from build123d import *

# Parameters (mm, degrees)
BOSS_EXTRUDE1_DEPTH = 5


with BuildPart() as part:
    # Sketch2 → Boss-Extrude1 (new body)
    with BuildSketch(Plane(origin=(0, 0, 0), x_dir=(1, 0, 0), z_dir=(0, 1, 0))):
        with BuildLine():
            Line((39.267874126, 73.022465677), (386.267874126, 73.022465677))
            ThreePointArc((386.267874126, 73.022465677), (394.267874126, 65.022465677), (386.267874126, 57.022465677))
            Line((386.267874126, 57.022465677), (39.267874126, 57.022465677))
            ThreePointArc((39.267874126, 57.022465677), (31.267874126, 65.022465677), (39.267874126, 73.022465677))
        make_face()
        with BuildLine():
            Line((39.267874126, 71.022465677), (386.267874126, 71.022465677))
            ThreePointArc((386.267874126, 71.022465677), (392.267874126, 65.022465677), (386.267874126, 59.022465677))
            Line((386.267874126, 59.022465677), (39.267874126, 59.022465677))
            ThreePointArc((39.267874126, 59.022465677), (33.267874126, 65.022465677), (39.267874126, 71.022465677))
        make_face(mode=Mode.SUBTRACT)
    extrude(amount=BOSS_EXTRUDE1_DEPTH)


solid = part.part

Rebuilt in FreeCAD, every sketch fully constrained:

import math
import FreeCAD as App
import Part
import Sketcher
from FreeCAD import Vector
Q = App.Units.Quantity

doc = App.newDocument("Part")
params = doc.addObject("Spreadsheet::Sheet", "Params")
for row, (alias, value) in enumerate([
    ("sketch1_radius", "8 mm"),
    ("sketch1_radius2", "6 mm"),
    ("sketch1_width", "347 mm"),
    ("pad1_length", "5 mm"),
], start=1):
    params.set(f"A{row}", alias)
    params.set(f"B{row}", "=" + value)
    params.setAlias(f"B{row}", alias)

body = doc.addObject("PartDesign::Body", "Body")

# Sketch on XZ plane
sketch1 = body.newObject("Sketcher::SketchObject", "Sketch")
sketch1.AttachmentSupport = (doc.getObject("XZ_Plane"), [""])
sketch1.MapMode = "FlatFace"
sketch1.addGeometry(Part.LineSegment(Vector(386.267874, -73.022466, 0), Vector(39.267874, -73.022466, 0)), False)
sketch1.addGeometry(Part.ArcOfCircle(Part.Circle(Vector(39.267874, -65.022466, 0), Vector(0, 0, 1), 8), math.radians(90), math.radians(270)), False)
sketch1.addGeometry(Part.LineSegment(Vector(39.267874, -57.022466, 0), Vector(386.267874, -57.022466, 0)), False)
sketch1.addGeometry(Part.ArcOfCircle(Part.Circle(Vector(386.267874, -65.022466, 0), Vector(0, 0, 1), 8), math.radians(-90), math.radians(90)), False)
sketch1.addGeometry(Part.LineSegment(Vector(39.267874, -71.022466, 0), Vector(386.267874, -71.022466, 0)), False)
sketch1.addGeometry(Part.ArcOfCircle(Part.Circle(Vector(386.267874, -65.022466, 0), Vector(0, 0, 1), 6), math.radians(-90), math.radians(90)), False)
sketch1.addGeometry(Part.LineSegment(Vector(386.267874, -59.022466, 0), Vector(39.267874, -59.022466, 0)), False)
sketch1.addGeometry(Part.ArcOfCircle(Part.Circle(Vector(39.267874, -65.022466, 0), Vector(0, 0, 1), 6), math.radians(90), math.radians(270)), False)
sketch1.addConstraint(Sketcher.Constraint("Tangent", 0, 2, 1, 2))
sketch1.addConstraint(Sketcher.Constraint("Tangent", 1, 1, 2, 1))
sketch1.addConstraint(Sketcher.Constraint("Tangent", 2, 2, 3, 2))
sketch1.addConstraint(Sketcher.Constraint("Tangent", 3, 1, 0, 1))
sketch1.addConstraint(Sketcher.Constraint("Tangent", 4, 2, 5, 1))
sketch1.addConstraint(Sketcher.Constraint("Tangent", 5, 2, 6, 1))
sketch1.addConstraint(Sketcher.Constraint("Tangent", 6, 2, 7, 1))
sketch1.addConstraint(Sketcher.Constraint("Tangent", 7, 2, 4, 1))
sketch1.addConstraint(Sketcher.Constraint("Horizontal", 0))
sketch1.addConstraint(Sketcher.Constraint("Horizontal", 2))
sketch1.addConstraint(Sketcher.Constraint("Horizontal", 4))
sketch1.addConstraint(Sketcher.Constraint("Horizontal", 6))
sketch1.addConstraint(Sketcher.Constraint("Coincident", 5, 3, 3, 3))
sketch1.addConstraint(Sketcher.Constraint("Vertical", 7, 3, 0, 2))
sketch1.addConstraint(Sketcher.Constraint("Radius", 1, Q("8 mm")))
sketch1.addConstraint(Sketcher.Constraint("Radius", 5, Q("6 mm")))
sketch1.addConstraint(Sketcher.Constraint("DistanceX", 0, 2, 0, 1, Q("347 mm")))
sketch1.addConstraint(Sketcher.Constraint("DistanceX", -1, 1, 1, 3, Q("39.267874 mm")))
sketch1.addConstraint(Sketcher.Constraint("DistanceY", 1, 3, -1, 1, Q("65.022466 mm")))
sketch1.setExpression("Constraints[14]", "Params.sketch1_radius")
sketch1.setExpression("Constraints[15]", "Params.sketch1_radius2")
sketch1.setExpression("Constraints[16]", "Params.sketch1_width")
pad1 = body.newObject("PartDesign::Pad", "Pad")
pad1.Profile = sketch1
pad1.setExpression("Length", "Params.pad1_length")
pad1.Reversed = True

doc.recompute()
